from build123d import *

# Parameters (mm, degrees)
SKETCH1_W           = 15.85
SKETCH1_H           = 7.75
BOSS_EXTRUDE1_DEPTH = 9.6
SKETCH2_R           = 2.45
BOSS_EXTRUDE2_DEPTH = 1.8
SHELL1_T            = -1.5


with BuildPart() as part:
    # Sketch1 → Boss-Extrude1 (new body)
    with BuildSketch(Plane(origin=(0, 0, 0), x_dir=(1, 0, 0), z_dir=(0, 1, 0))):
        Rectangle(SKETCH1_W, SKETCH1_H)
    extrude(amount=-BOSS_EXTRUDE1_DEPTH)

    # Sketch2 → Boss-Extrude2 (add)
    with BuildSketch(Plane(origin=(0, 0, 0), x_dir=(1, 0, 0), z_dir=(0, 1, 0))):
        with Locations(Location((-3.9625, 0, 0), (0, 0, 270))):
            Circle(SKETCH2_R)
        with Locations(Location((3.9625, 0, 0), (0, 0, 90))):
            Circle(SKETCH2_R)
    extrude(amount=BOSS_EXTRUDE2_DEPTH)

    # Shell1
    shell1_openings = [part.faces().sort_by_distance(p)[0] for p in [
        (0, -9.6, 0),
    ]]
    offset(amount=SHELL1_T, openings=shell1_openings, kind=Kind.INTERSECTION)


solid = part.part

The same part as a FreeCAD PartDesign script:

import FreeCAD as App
import Part
import Sketcher
Q = App.Units.Quantity


def faces_at(feature, points):
    """Names of the faces that lie closest to the given points."""
    faces = feature.Shape.Faces
    near = lambda p: min(range(len(faces)), key=lambda i: faces[i].distToShape(Part.Vertex(*p))[0])
    return sorted({f"Face{near(p) + 1}" for p in points})

doc = App.newDocument("Part")
body = doc.addObject("PartDesign::Body", "Body")

# Sketch on XZ plane
sketch1 = body.newObject("Sketcher::SketchObject", "Sketch")
sketch1.AttachmentSupport = (doc.getObject("XZ_Plane"), [""])
sketch1.MapMode = "FlatFace"
sketch1.addGeometry(Part.LineSegment(App.Vector(-7.925, -3.875, 0), App.Vector(-7.925, 3.875, 0)), False)
sketch1.addGeometry(Part.LineSegment(App.Vector(-7.925, 3.875, 0), App.Vector(7.925, 3.875, 0)), False)
sketch1.addGeometry(Part.LineSegment(App.Vector(7.925, 3.875, 0), App.Vector(7.925, -3.875, 0)), False)
sketch1.addGeometry(Part.LineSegment(App.Vector(7.925, -3.875, 0), App.Vector(-7.925, -3.875, 0)), False)
sketch1.addConstraint(Sketcher.Constraint("Coincident", 0, 2, 1, 1))
sketch1.addConstraint(Sketcher.Constraint("Coincident", 1, 2, 2, 1))
sketch1.addConstraint(Sketcher.Constraint("Coincident", 2, 2, 3, 1))
sketch1.addConstraint(Sketcher.Constraint("Coincident", 3, 2, 0, 1))
sketch1.addConstraint(Sketcher.Constraint("Vertical", 0))
sketch1.addConstraint(Sketcher.Constraint("Horizontal", 1))
sketch1.addConstraint(Sketcher.Constraint("Vertical", 2))
sketch1.addConstraint(Sketcher.Constraint("Horizontal", 3))
sketch1.addConstraint(Sketcher.Constraint("Symmetric", 0, 2, 2, 2, -1, 1))
sketch1.addConstraint(Sketcher.Constraint("DistanceX", 1, 1, 1, 2, Q("15.85 mm")))
sketch1.addConstraint(Sketcher.Constraint("DistanceY", 0, 1, 0, 2, Q("7.75 mm")))
pad1 = body.newObject("PartDesign::Pad", "Pad")
pad1.Profile = sketch1
pad1.Length = 9.6

# Sketch on XZ plane
sketch2 = body.newObject("Sketcher::SketchObject", "Sketch001")
sketch2.AttachmentSupport = (doc.getObject("XZ_Plane"), [""])
sketch2.MapMode = "FlatFace"
sketch2.addGeometry(Part.Circle(App.Vector(-3.9625, 0, 0), App.Vector(0, 0, 1), 2.45), False)
sketch2.addGeometry(Part.Circle(App.Vector(3.9625, 0, 0), App.Vector(0, 0, 1), 2.45), False)
sketch2.addConstraint(Sketcher.Constraint("Equal", 0, 1))
sketch2.addConstraint(Sketcher.Constraint("Symmetric", 0, 3, 1, 3, -1, 1))
sketch2.addConstraint(Sketcher.Constraint("PointOnObject", 0, 3, -1))
sketch2.addConstraint(Sketcher.Constraint("Diameter", 0, Q("4.9 mm")))
sketch2.addConstraint(Sketcher.Constraint("DistanceX", 0, 3, 1, 3, Q("7.925 mm")))
pad2 = body.newObject("PartDesign::Pad", "Pad001")
pad2.Profile = sketch2
pad2.Length = 1.8
pad2.Reversed = True
doc.recompute()

thickness = body.newObject("PartDesign::Thickness", "Thickness")
thickness.Base = (pad2, faces_at(pad2, [(0, -9.6, 0)]))
thickness.Value = 1.5
thickness.Reversed = True
thickness.Join = "Intersection"

doc.recompute()
